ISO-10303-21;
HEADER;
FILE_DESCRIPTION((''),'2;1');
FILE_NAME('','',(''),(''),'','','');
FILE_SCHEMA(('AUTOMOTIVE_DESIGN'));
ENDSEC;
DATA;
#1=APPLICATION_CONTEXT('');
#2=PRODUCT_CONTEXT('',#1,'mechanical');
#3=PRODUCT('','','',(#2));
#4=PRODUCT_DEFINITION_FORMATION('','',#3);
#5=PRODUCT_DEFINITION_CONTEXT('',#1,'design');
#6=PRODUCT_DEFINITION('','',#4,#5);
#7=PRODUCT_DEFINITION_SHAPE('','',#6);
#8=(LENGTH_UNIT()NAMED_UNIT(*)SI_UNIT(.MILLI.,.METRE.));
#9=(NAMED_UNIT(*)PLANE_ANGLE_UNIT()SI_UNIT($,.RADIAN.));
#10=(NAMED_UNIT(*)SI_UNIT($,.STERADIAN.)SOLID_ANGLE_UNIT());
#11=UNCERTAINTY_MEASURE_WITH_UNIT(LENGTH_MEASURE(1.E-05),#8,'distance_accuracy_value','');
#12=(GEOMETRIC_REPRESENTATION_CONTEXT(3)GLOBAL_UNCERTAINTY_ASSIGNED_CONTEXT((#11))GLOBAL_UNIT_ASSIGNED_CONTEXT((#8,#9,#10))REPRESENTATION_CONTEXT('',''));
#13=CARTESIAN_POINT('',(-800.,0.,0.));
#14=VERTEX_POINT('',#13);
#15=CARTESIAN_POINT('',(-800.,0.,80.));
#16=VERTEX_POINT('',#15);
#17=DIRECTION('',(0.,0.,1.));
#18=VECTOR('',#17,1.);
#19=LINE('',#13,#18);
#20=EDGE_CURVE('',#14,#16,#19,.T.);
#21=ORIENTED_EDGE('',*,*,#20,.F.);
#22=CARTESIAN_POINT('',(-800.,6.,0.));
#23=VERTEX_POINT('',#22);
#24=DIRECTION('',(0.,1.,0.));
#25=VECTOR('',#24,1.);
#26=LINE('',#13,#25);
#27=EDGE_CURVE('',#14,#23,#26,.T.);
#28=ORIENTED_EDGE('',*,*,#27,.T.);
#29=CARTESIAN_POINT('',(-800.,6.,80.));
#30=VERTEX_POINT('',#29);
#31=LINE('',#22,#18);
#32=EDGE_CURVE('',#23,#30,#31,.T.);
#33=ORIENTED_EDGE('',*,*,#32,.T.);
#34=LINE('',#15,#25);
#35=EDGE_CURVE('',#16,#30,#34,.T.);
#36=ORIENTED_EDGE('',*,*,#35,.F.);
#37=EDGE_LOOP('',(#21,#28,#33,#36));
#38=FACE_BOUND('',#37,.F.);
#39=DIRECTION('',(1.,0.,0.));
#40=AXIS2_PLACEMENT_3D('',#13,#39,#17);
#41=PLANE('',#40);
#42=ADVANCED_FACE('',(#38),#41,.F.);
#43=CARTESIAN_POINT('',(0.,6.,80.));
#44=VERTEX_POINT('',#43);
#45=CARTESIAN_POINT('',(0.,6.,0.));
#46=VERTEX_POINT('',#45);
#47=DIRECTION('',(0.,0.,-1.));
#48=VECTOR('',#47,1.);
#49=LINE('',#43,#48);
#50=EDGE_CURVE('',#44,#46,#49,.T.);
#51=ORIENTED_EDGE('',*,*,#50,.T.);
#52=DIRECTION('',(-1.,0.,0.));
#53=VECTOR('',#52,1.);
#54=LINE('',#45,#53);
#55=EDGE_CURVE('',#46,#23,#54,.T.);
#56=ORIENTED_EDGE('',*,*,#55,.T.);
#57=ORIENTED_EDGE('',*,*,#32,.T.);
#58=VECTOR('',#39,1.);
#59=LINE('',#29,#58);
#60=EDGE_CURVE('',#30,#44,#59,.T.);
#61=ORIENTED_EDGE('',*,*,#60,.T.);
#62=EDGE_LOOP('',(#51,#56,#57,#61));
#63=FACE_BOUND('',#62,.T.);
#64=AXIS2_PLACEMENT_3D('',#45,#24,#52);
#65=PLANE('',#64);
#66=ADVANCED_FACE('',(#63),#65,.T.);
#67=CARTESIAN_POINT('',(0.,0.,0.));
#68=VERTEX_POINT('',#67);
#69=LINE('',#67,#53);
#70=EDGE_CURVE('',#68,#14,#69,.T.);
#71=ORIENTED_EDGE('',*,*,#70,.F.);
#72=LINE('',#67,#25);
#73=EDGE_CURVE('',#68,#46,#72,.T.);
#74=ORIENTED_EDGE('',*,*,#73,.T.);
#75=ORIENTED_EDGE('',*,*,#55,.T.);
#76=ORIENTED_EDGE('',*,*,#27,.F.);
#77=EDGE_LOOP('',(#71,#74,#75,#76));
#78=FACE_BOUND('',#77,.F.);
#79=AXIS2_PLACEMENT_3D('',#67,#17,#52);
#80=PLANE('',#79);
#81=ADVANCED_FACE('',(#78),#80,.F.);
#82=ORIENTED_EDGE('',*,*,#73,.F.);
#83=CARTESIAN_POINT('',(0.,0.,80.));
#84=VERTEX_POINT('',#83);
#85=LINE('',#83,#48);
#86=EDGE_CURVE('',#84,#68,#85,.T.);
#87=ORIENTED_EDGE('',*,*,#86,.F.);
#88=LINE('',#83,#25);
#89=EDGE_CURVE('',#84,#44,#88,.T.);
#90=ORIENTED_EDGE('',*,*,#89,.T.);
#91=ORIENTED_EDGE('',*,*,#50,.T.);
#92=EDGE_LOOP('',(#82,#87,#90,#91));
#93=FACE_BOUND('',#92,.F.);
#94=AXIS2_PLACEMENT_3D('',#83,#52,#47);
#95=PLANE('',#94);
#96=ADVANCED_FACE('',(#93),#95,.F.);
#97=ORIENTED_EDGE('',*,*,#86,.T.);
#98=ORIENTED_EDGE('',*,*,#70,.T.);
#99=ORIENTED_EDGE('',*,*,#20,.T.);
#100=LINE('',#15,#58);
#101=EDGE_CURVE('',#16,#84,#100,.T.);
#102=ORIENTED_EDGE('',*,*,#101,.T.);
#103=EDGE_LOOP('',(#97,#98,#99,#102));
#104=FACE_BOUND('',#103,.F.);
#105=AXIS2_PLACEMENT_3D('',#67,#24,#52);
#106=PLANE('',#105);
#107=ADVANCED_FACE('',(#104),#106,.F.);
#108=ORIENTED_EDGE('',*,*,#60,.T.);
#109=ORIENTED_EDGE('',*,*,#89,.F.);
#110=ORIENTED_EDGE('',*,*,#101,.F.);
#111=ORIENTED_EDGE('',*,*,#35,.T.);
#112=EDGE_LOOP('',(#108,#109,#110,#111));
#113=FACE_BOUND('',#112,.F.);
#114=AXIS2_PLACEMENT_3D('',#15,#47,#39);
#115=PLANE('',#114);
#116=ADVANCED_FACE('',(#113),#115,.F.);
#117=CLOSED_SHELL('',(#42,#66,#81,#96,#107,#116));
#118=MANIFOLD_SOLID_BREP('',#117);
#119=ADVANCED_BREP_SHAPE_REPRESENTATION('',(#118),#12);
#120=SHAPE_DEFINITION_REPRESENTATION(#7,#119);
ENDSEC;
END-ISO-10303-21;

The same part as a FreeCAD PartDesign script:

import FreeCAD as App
import Part
import Sketcher
Q = App.Units.Quantity


def add_polygon(sketch, points):
    """Adds a closed chain of lines whose ends are joined by coincident constraints."""
    first, n = sketch.GeometryCount, len(points)
    for a, b in zip(points, points[1:] + points[:1]):
        sketch.addGeometry(Part.LineSegment(App.Vector(*a, 0), App.Vector(*b, 0)), False)
    for i in range(n):
        sketch.addConstraint(Sketcher.Constraint("Coincident", first + i, 2, first + (i + 1) % n, 1))

doc = App.newDocument("Part")
body = doc.addObject("PartDesign::Body", "Body")

sketch1 = body.newObject("Sketcher::SketchObject", "Sketch")
sketch1.AttachmentSupport = (doc.getObject("XZ_Plane"), [""])
sketch1.MapMode = "FlatFace"
add_polygon(sketch1, [(0, 80), (0, 0), (-800, 0), (-800, 80)])
sketch1.addConstraint(Sketcher.Constraint("Vertical", 0))
sketch1.addConstraint(Sketcher.Constraint("Horizontal", 1))
sketch1.addConstraint(Sketcher.Constraint("Vertical", 2))
sketch1.addConstraint(Sketcher.Constraint("Horizontal", 3))
sketch1.addConstraint(Sketcher.Constraint("Coincident", 0, 2, -1, 1))
sketch1.addConstraint(Sketcher.Constraint("DistanceX", 1, 2, 1, 1, Q("800 mm")))
sketch1.addConstraint(Sketcher.Constraint("DistanceY", 0, 2, 0, 1, Q("80 mm")))
pad1 = body.newObject("PartDesign::Pad", "Pad")
pad1.Profile = sketch1
pad1.Length = 6
pad1.Reversed = True

doc.recompute()
